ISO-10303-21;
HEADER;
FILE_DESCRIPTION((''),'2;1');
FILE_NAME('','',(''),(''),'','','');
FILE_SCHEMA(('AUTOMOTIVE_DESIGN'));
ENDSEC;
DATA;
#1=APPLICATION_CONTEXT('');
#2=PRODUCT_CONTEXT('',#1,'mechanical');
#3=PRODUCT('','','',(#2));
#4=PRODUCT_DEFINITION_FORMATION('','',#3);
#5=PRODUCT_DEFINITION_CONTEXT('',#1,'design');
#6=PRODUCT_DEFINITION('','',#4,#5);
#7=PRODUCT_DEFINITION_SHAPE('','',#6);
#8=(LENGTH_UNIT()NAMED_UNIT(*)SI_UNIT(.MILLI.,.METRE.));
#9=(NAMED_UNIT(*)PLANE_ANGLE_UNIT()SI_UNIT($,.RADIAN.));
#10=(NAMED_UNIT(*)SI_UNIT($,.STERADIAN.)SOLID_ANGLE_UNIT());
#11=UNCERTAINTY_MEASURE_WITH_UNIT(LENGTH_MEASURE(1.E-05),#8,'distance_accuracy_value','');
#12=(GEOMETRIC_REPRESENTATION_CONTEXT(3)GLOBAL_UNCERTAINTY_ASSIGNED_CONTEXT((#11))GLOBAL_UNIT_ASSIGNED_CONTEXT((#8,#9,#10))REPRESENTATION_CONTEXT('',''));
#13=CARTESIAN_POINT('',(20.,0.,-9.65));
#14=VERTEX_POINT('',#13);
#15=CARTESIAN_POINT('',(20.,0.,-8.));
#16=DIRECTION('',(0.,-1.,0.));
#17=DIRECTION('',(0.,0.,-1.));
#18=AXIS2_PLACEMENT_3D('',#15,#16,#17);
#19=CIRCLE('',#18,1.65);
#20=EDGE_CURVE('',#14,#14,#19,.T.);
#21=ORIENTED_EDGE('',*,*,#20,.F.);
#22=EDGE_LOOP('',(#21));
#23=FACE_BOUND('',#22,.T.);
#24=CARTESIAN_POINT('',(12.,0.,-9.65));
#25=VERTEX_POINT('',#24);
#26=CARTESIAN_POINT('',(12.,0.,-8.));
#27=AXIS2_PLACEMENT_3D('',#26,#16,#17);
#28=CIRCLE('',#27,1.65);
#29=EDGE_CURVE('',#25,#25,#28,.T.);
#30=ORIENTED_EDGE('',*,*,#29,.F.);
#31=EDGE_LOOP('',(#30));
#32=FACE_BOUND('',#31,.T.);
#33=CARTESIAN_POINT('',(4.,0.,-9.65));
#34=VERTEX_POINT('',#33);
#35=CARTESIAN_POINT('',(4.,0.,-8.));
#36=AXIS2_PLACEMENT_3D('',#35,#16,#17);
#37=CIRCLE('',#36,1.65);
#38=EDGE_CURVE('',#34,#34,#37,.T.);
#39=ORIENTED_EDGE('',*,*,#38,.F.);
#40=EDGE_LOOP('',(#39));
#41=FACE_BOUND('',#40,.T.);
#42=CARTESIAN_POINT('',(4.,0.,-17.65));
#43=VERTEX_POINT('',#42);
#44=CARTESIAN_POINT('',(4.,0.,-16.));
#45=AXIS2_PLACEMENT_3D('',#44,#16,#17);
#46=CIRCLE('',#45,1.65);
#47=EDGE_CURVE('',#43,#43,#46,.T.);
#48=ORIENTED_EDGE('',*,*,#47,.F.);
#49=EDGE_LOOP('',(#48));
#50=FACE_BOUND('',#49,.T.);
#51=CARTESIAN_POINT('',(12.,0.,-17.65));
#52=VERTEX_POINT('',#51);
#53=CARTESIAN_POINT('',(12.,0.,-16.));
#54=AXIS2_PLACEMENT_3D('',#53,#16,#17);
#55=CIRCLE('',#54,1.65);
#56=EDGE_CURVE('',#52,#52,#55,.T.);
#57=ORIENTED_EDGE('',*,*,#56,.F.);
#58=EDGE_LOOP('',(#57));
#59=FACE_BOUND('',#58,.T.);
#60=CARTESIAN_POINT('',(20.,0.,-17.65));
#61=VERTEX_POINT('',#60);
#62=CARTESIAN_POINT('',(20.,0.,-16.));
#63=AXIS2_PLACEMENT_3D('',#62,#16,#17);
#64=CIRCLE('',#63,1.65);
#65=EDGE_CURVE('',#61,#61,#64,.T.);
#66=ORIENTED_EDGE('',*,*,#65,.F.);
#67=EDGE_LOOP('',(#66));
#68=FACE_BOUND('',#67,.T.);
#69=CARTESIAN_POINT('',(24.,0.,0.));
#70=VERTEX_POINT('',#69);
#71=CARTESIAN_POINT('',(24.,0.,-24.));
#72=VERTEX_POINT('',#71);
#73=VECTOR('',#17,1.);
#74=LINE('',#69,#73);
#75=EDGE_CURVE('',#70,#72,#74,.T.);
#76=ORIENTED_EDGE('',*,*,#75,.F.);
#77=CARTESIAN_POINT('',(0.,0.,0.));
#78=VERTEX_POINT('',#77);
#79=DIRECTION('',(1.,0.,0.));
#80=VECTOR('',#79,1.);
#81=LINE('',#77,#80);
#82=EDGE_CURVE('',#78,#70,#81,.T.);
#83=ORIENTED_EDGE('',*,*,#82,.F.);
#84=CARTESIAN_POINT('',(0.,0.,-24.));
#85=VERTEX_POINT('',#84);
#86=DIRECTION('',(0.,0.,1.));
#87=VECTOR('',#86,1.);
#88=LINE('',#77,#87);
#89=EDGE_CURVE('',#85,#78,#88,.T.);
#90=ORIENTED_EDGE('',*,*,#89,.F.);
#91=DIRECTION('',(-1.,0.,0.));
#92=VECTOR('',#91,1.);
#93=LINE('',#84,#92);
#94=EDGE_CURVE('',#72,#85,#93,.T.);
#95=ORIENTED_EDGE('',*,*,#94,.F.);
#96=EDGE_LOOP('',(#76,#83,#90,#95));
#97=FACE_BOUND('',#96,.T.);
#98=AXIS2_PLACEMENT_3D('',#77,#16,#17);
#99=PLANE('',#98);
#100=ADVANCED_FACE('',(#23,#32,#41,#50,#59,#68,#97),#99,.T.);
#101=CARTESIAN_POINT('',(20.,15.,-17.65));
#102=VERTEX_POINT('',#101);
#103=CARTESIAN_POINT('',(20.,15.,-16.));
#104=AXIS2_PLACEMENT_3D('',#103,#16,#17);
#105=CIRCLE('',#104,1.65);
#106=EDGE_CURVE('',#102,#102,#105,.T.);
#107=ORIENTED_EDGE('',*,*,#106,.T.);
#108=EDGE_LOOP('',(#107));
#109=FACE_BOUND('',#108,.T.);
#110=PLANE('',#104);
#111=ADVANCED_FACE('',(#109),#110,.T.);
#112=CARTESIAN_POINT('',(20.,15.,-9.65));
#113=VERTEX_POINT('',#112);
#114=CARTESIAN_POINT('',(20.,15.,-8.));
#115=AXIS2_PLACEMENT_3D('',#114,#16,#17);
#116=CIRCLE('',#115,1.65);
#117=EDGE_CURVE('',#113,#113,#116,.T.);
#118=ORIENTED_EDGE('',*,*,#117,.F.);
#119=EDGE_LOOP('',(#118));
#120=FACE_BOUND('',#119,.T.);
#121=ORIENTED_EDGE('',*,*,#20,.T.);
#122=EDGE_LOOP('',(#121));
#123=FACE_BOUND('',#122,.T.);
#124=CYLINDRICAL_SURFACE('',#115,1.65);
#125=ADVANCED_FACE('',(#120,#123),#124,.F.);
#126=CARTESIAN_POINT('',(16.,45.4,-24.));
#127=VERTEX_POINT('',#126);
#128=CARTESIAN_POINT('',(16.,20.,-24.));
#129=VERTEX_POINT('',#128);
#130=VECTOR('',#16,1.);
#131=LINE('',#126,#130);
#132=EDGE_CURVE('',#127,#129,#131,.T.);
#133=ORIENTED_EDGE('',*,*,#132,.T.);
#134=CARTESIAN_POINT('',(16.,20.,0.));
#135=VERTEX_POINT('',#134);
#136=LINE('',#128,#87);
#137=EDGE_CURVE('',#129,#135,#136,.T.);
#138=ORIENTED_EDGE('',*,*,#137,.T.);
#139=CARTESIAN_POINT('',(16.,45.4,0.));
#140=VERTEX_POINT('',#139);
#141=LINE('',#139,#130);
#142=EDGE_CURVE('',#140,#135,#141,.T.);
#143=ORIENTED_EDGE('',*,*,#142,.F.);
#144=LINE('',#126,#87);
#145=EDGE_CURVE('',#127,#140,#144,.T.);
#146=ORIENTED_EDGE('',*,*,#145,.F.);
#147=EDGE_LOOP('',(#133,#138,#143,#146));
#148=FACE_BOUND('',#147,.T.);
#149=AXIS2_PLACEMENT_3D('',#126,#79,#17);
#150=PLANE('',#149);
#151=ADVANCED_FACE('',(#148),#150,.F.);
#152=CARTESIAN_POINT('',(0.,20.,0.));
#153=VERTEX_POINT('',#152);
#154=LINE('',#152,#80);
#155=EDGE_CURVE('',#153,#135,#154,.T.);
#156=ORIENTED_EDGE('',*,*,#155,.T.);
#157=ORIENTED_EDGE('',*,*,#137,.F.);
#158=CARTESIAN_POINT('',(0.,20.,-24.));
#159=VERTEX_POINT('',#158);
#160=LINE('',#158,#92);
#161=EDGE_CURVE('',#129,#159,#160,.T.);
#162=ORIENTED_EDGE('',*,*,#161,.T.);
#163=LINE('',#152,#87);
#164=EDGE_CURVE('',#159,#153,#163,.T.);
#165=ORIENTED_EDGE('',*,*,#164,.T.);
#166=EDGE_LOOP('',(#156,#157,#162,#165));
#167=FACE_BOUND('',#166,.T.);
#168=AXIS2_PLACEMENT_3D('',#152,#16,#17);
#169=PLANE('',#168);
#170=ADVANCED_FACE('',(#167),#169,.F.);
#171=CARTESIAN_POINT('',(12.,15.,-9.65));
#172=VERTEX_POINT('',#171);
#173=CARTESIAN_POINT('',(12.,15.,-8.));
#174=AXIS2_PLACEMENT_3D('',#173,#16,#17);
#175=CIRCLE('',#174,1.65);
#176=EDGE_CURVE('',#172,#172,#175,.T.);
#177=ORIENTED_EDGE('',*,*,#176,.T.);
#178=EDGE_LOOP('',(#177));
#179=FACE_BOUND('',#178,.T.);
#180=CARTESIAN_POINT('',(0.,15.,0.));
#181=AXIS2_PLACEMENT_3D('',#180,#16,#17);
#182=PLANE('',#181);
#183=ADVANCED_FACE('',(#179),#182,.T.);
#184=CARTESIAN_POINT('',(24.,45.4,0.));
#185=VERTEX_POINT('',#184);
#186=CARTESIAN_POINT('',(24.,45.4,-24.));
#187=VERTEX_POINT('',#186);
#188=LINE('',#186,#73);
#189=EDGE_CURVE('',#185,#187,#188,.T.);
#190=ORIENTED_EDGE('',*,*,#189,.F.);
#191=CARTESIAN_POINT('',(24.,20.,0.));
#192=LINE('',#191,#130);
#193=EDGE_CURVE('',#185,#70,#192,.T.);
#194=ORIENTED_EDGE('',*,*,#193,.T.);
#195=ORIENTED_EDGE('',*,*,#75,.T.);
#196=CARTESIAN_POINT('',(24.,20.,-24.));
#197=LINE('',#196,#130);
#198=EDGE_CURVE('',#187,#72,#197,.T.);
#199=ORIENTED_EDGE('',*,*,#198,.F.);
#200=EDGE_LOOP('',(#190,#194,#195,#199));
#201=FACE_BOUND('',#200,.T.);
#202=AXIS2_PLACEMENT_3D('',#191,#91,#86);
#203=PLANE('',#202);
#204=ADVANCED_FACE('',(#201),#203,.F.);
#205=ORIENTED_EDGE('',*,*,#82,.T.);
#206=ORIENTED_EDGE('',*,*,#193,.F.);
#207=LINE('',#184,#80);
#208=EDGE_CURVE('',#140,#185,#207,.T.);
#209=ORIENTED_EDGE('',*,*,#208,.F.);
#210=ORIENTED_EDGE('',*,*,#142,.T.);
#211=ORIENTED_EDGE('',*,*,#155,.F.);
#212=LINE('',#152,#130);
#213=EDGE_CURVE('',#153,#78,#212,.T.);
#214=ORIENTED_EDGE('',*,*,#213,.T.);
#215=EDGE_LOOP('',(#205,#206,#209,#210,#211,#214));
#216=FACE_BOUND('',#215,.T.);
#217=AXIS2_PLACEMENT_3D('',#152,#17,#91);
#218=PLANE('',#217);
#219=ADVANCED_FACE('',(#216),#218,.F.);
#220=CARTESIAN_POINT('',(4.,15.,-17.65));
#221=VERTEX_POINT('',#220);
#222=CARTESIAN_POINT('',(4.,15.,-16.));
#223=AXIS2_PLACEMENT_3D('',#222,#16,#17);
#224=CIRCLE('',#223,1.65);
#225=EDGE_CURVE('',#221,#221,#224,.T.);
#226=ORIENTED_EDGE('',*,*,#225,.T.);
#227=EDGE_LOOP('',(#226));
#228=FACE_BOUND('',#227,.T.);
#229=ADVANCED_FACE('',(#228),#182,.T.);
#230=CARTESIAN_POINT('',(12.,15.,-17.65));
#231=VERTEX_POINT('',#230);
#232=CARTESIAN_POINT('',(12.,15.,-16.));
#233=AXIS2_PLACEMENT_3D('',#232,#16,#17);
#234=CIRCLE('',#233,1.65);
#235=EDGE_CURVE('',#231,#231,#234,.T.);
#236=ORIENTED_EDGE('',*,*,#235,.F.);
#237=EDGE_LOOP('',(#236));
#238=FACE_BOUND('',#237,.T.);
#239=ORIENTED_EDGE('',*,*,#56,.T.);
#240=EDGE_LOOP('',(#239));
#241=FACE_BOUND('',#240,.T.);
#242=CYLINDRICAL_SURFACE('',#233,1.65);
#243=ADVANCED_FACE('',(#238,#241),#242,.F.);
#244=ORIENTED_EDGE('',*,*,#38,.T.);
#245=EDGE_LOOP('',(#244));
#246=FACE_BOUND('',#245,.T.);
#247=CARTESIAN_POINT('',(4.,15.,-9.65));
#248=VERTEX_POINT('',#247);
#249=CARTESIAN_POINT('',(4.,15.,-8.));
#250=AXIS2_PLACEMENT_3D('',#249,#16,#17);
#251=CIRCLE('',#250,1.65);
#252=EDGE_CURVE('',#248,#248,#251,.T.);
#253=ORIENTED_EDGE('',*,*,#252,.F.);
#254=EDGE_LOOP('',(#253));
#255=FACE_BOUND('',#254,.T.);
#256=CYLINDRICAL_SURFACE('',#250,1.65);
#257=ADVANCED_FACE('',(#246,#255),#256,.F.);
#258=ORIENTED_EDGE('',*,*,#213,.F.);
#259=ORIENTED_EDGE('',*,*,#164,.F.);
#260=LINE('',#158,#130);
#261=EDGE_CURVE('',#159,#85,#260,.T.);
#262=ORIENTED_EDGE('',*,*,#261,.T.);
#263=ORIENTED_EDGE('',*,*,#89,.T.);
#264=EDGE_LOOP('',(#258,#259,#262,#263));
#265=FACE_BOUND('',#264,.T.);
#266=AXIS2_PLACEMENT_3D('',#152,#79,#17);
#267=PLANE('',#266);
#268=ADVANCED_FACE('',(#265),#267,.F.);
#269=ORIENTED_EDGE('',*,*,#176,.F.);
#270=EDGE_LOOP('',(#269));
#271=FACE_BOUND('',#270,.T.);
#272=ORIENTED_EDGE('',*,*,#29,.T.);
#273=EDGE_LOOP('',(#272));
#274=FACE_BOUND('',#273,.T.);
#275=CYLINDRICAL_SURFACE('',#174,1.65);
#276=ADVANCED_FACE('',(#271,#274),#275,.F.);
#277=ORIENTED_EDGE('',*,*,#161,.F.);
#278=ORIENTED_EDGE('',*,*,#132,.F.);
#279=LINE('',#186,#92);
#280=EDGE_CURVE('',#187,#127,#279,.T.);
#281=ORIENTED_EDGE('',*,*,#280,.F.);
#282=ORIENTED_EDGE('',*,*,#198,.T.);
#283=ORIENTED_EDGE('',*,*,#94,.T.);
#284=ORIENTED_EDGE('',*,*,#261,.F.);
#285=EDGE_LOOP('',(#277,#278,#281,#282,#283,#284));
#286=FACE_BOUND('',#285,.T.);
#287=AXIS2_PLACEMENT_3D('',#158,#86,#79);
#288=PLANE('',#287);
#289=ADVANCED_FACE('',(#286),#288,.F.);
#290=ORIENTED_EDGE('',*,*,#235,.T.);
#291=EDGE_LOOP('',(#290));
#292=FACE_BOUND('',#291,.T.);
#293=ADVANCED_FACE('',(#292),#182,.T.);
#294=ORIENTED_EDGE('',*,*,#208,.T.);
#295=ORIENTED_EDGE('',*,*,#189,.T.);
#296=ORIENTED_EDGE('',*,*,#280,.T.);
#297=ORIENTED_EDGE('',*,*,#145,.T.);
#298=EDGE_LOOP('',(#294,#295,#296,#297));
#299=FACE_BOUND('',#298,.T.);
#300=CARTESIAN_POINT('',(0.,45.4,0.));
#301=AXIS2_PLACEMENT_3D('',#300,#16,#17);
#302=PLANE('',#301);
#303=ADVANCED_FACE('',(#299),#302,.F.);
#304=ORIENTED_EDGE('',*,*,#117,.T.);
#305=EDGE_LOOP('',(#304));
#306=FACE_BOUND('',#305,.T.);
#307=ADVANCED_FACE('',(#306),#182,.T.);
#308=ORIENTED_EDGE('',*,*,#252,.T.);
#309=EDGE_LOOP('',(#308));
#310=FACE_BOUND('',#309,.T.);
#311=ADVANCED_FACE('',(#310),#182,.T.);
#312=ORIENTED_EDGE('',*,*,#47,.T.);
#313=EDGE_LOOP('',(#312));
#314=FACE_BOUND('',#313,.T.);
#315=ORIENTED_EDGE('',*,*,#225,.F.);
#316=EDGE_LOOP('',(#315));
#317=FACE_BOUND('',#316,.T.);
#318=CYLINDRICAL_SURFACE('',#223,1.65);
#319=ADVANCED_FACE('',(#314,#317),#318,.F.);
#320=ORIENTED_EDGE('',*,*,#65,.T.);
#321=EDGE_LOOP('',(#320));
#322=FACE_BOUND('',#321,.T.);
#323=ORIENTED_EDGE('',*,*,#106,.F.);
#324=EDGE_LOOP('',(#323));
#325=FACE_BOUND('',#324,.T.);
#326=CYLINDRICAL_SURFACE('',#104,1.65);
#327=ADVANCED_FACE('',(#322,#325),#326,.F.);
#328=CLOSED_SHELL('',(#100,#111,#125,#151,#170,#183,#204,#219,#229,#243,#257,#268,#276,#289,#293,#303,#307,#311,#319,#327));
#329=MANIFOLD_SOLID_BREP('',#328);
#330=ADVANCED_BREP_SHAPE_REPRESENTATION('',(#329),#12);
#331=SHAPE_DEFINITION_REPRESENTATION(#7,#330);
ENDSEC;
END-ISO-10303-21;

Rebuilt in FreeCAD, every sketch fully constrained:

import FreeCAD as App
import Part
import Sketcher

doc = App.newDocument("Part")
params = doc.addObject("Spreadsheet::Sheet", "Params")
for row, (alias, value) in enumerate([
    ("sketch1_width", "24 mm"),
    ("pad1_length", "20 mm"),
    ("sketch2_width", "8 mm"),
    ("sketch2_height", "24 mm"),
    ("pad2_length", "25.4 mm"),
    ("sketch3_diameter", "3.3 mm"),
    ("pocket1_length", "15 mm"),
], start=1):
    params.set(f"A{row}", alias)
    params.set(f"B{row}", "=" + value)
    params.setAlias(f"B{row}", alias)

body = doc.addObject("PartDesign::Body", "Body")

sketch1 = body.newObject("Sketcher::SketchObject", "Sketch")
sketch1.AttachmentSupport = (doc.getObject("XZ_Plane"), [""])
sketch1.MapMode = "FlatFace"
sketch1.addGeometry(Part.LineSegment(App.Vector(0, -24, 0), App.Vector(0, 0, 0)), False)
sketch1.addGeometry(Part.LineSegment(App.Vector(0, 0, 0), App.Vector(24, 0, 0)), False)
sketch1.addGeometry(Part.LineSegment(App.Vector(24, 0, 0), App.Vector(24, -24, 0)), False)
sketch1.addGeometry(Part.LineSegment(App.Vector(24, -24, 0), App.Vector(0, -24, 0)), False)
sketch1.addConstraint(Sketcher.Constraint("Coincident", 0, 2, 1, 1))
sketch1.addConstraint(Sketcher.Constraint("Coincident", 1, 2, 2, 1))
sketch1.addConstraint(Sketcher.Constraint("Coincident", 2, 2, 3, 1))
sketch1.addConstraint(Sketcher.Constraint("Coincident", 3, 2, 0, 1))
sketch1.addConstraint(Sketcher.Constraint("Vertical", 0))
sketch1.addConstraint(Sketcher.Constraint("Horizontal", 1))
sketch1.addConstraint(Sketcher.Constraint("Vertical", 2))
sketch1.addConstraint(Sketcher.Constraint("Horizontal", 3))
sketch1.addConstraint(Sketcher.Constraint("Coincident", 0, 2, -1, 1))
sketch1.addConstraint(Sketcher.Constraint("Equal", 3, 0))
sketch1.addConstraint(Sketcher.Constraint("DistanceX", 1, 1, 1, 2, 24.0))
sketch1.setExpression("Constraints[10]", "Params.sketch1_width")
pad1 = body.newObject("PartDesign::Pad", "Pad")
pad1.Profile = sketch1
pad1.setExpression("Length", "Params.pad1_length")
pad1.Reversed = True

sketch2 = body.newObject("Sketcher::SketchObject", "Sketch001")
sketch2.AttachmentSupport = (doc.getObject("XZ_Plane"), [""])
sketch2.MapMode = "FlatFace"
sketch2.AttachmentOffset = App.Placement(App.Vector(0, 0, -20), App.Rotation())
sketch2.addGeometry(Part.LineSegment(App.Vector(16, -24, 0), App.Vector(16, 0, 0)), False)
sketch2.addGeometry(Part.LineSegment(App.Vector(16, 0, 0), App.Vector(24, 0, 0)), False)
sketch2.addGeometry(Part.LineSegment(App.Vector(24, 0, 0), App.Vector(24, -24, 0)), False)
sketch2.addGeometry(Part.LineSegment(App.Vector(24, -24, 0), App.Vector(16, -24, 0)), False)
sketch2.addConstraint(Sketcher.Constraint("Coincident", 0, 2, 1, 1))
sketch2.addConstraint(Sketcher.Constraint("Coincident", 1, 2, 2, 1))
sketch2.addConstraint(Sketcher.Constraint("Coincident", 2, 2, 3, 1))
sketch2.addConstraint(Sketcher.Constraint("Coincident", 3, 2, 0, 1))
sketch2.addConstraint(Sketcher.Constraint("Vertical", 0))
sketch2.addConstraint(Sketcher.Constraint("Horizontal", 1))
sketch2.addConstraint(Sketcher.Constraint("Vertical", 2))
sketch2.addConstraint(Sketcher.Constraint("Horizontal", 3))
sketch2.addConstraint(Sketcher.Constraint("PointOnObject", 0, 2, -1))
sketch2.addConstraint(Sketcher.Constraint("DistanceX", 1, 1, 1, 2, 8.0))
sketch2.addConstraint(Sketcher.Constraint("DistanceY", 0, 1, 0, 2, 24.0))
sketch2.addConstraint(Sketcher.Constraint("DistanceX", -1, 1, 0, 2, 16.0))
sketch2.setExpression("Constraints[9]", "Params.sketch2_width")
sketch2.setExpression("Constraints[10]", "Params.sketch2_height")
pad2 = body.newObject("PartDesign::Pad", "Pad001")
pad2.Profile = sketch2
pad2.setExpression("Length", "Params.pad2_length")
pad2.Reversed = True

sketch3 = body.newObject("Sketcher::SketchObject", "Sketch002")
sketch3.AttachmentSupport = (doc.getObject("XZ_Plane"), [""])
sketch3.MapMode = "FlatFace"
sketch3.addGeometry(Part.Circle(App.Vector(4, -16, 0), App.Vector(0, 0, 1), 1.65), False)
sketch3.addGeometry(Part.Circle(App.Vector(4, -8, 0), App.Vector(0, 0, 1), 1.65), False)
sketch3.addGeometry(Part.Circle(App.Vector(12, -8, 0), App.Vector(0, 0, 1), 1.65), False)
sketch3.addGeometry(Part.Circle(App.Vector(12, -16, 0), App.Vector(0, 0, 1), 1.65), False)
sketch3.addGeometry(Part.Circle(App.Vector(20, -8, 0), App.Vector(0, 0, 1), 1.65), False)
sketch3.addGeometry(Part.Circle(App.Vector(20, -16, 0), App.Vector(0, 0, 1), 1.65), False)
sketch3.addConstraint(Sketcher.Constraint("Equal", 0, 1))
sketch3.addConstraint(Sketcher.Constraint("Equal", 1, 2))
sketch3.addConstraint(Sketcher.Constraint("Equal", 2, 3))
sketch3.addConstraint(Sketcher.Constraint("Equal", 3, 4))
sketch3.addConstraint(Sketcher.Constraint("Equal", 4, 5))
sketch3.addConstraint(Sketcher.Constraint("Horizontal", 1, 3, 2, 3))
sketch3.addConstraint(Sketcher.Constraint("Horizontal", 0, 3, 3, 3))
sketch3.addConstraint(Sketcher.Constraint("Horizontal", 2, 3, 4, 3))
sketch3.addConstraint(Sketcher.Constraint("Horizontal", 3, 3, 5, 3))
sketch3.addConstraint(Sketcher.Constraint("Vertical", 0, 3, 1, 3))
sketch3.addConstraint(Sketcher.Constraint("Vertical", 2, 3, 3, 3))
sketch3.addConstraint(Sketcher.Constraint("Vertical", 4, 3, 5, 3))
sketch3.addConstraint(Sketcher.Constraint("Diameter", 0, 3.3))
sketch3.addConstraint(Sketcher.Constraint("DistanceX", -1, 1, 0, 3, 4.0))
sketch3.addConstraint(Sketcher.Constraint("DistanceY", 0, 3, -1, 1, 16.0))
sketch3.addConstraint(Sketcher.Constraint("DistanceY", 1, 3, -1, 1, 8.0))
sketch3.addConstraint(Sketcher.Constraint("DistanceX", -1, 1, 2, 3, 12.0))
sketch3.addConstraint(Sketcher.Constraint("DistanceX", -1, 1, 4, 3, 20.0))
sketch3.setExpression("Constraints[12]", "Params.sketch3_diameter")
pocket1 = body.newObject("PartDesign::Pocket", "Pocket")
pocket1.Profile = sketch3
pocket1.setExpression("Length", "Params.pocket1_length")

doc.recompute()
